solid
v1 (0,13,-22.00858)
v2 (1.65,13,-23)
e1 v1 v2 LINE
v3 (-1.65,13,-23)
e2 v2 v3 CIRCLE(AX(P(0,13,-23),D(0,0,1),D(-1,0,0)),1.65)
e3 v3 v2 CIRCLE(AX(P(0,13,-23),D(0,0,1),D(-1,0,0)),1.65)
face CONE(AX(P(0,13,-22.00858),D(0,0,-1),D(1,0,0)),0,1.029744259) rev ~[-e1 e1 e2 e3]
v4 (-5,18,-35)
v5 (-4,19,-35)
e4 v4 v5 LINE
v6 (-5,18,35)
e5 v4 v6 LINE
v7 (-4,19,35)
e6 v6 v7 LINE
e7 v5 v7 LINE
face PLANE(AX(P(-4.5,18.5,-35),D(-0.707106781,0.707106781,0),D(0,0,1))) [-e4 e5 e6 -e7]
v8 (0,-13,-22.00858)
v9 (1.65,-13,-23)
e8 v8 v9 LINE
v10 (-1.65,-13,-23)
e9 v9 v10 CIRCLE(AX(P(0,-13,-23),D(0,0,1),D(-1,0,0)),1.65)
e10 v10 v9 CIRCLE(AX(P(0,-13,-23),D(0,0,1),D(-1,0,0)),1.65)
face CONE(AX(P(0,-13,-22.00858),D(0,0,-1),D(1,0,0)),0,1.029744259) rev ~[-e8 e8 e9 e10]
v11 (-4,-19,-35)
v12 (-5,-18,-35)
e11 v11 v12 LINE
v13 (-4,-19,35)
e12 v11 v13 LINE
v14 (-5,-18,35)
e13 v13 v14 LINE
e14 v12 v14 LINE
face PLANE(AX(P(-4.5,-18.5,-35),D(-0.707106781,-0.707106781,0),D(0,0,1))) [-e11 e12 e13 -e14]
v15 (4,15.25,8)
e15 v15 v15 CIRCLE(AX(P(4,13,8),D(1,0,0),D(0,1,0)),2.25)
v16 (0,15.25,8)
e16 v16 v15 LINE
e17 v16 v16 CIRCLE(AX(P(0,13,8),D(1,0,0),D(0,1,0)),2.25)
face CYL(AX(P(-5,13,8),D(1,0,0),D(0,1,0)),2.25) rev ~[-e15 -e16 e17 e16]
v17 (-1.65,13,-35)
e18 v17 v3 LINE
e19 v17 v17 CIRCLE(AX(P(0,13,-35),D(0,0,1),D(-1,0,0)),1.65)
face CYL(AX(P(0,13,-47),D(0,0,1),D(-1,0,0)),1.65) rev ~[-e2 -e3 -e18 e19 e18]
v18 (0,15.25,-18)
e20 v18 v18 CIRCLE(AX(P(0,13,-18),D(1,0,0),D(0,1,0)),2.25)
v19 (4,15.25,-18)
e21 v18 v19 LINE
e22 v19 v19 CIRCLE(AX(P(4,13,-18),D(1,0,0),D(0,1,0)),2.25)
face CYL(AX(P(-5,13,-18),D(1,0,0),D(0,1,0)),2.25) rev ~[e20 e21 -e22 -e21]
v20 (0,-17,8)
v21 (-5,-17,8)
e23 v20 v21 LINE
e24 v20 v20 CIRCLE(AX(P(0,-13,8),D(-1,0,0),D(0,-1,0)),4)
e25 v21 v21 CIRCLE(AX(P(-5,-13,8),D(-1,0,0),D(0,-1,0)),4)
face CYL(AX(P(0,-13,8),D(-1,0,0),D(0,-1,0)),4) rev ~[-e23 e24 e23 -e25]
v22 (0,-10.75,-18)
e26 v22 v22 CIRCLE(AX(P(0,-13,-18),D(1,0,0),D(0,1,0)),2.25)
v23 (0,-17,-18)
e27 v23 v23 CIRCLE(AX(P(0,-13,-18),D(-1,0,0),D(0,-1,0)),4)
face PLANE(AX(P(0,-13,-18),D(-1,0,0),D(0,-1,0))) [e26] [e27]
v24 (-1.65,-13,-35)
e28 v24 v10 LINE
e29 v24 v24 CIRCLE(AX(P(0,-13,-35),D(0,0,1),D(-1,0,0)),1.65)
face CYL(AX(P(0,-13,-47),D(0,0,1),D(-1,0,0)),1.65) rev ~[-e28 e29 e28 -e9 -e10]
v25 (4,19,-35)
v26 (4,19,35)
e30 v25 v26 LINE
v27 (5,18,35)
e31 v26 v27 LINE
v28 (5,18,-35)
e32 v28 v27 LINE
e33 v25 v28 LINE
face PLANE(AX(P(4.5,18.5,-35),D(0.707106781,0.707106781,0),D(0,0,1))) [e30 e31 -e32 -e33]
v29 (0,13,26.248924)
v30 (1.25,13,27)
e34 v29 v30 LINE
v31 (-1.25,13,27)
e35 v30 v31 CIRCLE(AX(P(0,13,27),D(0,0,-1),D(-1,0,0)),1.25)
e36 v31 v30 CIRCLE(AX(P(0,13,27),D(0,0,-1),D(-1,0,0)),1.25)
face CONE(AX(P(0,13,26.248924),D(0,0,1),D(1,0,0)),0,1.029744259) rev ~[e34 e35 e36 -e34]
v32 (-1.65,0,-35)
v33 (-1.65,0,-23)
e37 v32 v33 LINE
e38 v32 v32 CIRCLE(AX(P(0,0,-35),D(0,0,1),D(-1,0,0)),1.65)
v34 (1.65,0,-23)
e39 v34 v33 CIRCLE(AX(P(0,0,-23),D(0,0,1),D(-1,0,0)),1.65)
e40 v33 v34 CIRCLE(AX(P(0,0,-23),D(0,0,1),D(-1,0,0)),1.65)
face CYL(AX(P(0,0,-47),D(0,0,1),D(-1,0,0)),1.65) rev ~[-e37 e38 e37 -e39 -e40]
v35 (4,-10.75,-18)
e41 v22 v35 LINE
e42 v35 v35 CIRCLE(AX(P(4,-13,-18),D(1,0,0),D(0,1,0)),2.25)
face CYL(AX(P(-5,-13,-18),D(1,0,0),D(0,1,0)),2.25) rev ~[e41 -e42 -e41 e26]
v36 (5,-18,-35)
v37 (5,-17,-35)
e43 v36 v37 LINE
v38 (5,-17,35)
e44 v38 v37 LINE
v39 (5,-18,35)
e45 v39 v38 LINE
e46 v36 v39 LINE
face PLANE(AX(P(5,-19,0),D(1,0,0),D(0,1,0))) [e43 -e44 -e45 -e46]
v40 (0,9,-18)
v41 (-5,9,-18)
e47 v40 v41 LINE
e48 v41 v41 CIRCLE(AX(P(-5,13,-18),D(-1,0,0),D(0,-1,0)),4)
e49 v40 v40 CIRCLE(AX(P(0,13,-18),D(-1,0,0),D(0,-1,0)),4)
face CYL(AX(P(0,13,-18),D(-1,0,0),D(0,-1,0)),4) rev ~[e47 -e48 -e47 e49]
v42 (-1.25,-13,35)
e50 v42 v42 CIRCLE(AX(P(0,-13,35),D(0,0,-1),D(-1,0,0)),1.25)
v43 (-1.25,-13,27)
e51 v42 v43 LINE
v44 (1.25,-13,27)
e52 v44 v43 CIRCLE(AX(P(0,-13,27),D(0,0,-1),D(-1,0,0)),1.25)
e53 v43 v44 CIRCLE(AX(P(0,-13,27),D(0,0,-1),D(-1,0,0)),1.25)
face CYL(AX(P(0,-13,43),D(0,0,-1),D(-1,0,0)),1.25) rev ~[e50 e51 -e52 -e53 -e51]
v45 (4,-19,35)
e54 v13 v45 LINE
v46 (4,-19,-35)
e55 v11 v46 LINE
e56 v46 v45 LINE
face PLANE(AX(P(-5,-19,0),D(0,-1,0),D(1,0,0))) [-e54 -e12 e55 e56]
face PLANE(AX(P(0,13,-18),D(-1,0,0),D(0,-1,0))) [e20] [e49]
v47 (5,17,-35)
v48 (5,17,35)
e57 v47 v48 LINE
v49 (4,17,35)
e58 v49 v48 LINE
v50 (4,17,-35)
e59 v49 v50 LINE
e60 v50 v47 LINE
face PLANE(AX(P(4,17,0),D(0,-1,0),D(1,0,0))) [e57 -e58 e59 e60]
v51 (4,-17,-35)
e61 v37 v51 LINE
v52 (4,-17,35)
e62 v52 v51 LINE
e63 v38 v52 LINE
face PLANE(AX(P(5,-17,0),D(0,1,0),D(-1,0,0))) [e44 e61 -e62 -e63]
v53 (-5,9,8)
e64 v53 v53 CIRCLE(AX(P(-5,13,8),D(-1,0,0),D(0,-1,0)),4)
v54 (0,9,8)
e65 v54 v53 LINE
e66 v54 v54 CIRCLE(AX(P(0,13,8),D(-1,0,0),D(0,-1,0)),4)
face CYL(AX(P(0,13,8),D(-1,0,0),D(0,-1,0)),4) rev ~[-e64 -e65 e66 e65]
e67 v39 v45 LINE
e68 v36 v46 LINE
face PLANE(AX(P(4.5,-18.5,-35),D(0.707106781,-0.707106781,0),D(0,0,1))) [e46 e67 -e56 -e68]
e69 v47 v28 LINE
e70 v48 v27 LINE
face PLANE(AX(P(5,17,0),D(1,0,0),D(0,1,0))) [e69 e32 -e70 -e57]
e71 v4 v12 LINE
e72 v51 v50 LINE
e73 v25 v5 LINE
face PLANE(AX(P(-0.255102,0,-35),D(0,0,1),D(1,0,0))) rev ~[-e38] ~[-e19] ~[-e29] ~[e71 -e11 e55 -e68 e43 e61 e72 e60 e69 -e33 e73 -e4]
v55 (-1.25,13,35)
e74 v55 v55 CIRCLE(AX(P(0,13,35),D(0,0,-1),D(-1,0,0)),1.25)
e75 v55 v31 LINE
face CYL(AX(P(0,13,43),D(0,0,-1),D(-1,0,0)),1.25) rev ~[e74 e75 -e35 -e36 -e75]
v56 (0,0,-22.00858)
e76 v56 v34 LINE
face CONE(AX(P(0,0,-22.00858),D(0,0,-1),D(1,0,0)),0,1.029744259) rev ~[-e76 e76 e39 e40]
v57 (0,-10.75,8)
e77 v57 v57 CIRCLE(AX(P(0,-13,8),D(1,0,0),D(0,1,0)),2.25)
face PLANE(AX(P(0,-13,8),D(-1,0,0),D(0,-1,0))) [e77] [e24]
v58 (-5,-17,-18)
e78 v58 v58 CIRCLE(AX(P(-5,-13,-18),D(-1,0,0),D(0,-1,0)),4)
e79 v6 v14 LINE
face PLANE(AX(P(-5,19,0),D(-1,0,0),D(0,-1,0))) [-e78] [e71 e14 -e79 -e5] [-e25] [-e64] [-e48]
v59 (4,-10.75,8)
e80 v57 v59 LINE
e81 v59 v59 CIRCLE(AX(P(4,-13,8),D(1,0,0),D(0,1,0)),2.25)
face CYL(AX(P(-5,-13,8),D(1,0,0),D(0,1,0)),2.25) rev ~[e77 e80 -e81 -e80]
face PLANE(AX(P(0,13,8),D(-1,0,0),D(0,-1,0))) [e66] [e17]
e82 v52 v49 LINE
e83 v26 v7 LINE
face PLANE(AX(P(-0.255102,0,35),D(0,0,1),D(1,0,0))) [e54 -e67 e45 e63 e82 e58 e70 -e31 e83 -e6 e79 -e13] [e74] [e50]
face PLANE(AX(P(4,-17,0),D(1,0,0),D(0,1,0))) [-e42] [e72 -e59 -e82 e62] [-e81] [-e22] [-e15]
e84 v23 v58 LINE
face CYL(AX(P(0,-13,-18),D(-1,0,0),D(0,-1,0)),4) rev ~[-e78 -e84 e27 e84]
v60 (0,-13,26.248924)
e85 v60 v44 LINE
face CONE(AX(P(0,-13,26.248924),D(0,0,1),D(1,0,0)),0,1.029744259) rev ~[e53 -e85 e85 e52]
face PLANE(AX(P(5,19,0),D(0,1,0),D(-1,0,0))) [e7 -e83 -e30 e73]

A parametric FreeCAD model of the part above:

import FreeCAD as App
import Part
import Sketcher

V = App.Vector
Q = App.Units.Quantity


def edges_at(feature, points):
    """Names of the edges that pass closest to the given points."""
    edges = feature.Shape.Edges
    near = lambda p: min(range(len(edges)), key=lambda i: edges[i].distToShape(Part.Vertex(*p))[0])
    return sorted({f"Edge{near(p) + 1}" for p in points})


def add_polygon(sketch, points):
    """Adds a closed chain of lines whose ends are joined by coincident constraints."""
    first, n = sketch.GeometryCount, len(points)
    for a, b in zip(points, points[1:] + points[:1]):
        sketch.addGeometry(Part.LineSegment(App.Vector(*a, 0), App.Vector(*b, 0)), False)
    for i in range(n):
        sketch.addConstraint(Sketcher.Constraint("Coincident", first + i, 2, first + (i + 1) % n, 1))

doc = App.newDocument("Part")
body = doc.addObject("PartDesign::Body", "Body")

# Sketch on XY plane
sketch1 = body.newObject("Sketcher::SketchObject", "Sketch")
sketch1.AttachmentSupport = (doc.getObject("XY_Plane"), [""])
sketch1.MapMode = "FlatFace"
add_polygon(sketch1, [(4, 17), (5, 17), (5, 19), (-5, 19), (-5, -19), (5, -19), (5, -17), (4, -17)])  # lines 0-7
sketch1.addConstraint(Sketcher.Constraint("Horizontal", 0))
sketch1.addConstraint(Sketcher.Constraint("Vertical", 1))
sketch1.addConstraint(Sketcher.Constraint("Horizontal", 2))
sketch1.addConstraint(Sketcher.Constraint("Vertical", 3))
sketch1.addConstraint(Sketcher.Constraint("Horizontal", 4))
sketch1.addConstraint(Sketcher.Constraint("Vertical", 5))
sketch1.addConstraint(Sketcher.Constraint("Horizontal", 6))
sketch1.addConstraint(Sketcher.Constraint("Vertical", 7))
sketch1.addConstraint(Sketcher.Constraint("Symmetric", 1, 2, 3, 2, -1, 1))
sketch1.addConstraint(Sketcher.Constraint("Symmetric", 0, 2, 5, 2, -1))
sketch1.addConstraint(Sketcher.Constraint("DistanceX", 0, 1, 0, 2, Q("1 mm")))
sketch1.addConstraint(Sketcher.Constraint("DistanceX", 2, 2, 2, 1, Q("10 mm")))
sketch1.addConstraint(Sketcher.Constraint("DistanceY", 1, 1, 1, 2, Q("2 mm")))
sketch1.addConstraint(Sketcher.Constraint("DistanceY", 3, 2, 3, 1, Q("38 mm")))
pad1 = body.newObject("PartDesign::Pad", "Pad")
pad1.Profile = sketch1
pad1.Length = 70
pad1.Midplane = True
doc.recompute()

chamfer = body.newObject("PartDesign::Chamfer", "Chamfer")
chamfer.Base = (pad1, edges_at(pad1, [
    (-5, 19, 0),
    (5, 19, 0),
    (-5, -19, 0),
    (5, -19, 0),
]))
chamfer.Size = 1

# Sketch on XY plane
sketch2 = body.newObject("Sketcher::SketchObject", "Sketch001")
sketch2.AttachmentSupport = (doc.getObject("XY_Plane"), [""])
sketch2.MapMode = "FlatFace"
sketch2.AttachmentOffset = App.Placement(V(0, 0, 35), App.Rotation())
sketch2.addGeometry(Part.Circle(V(0, 13, 0), V(0, 0, 1), 1.25), False)
sketch2.addGeometry(Part.Circle(V(0, -13, 0), V(0, 0, 1), 1.25), False)
sketch2.addConstraint(Sketcher.Constraint("Equal", 0, 1))
sketch2.addConstraint(Sketcher.Constraint("Symmetric", 0, 3, 1, 3, -1, 1))
sketch2.addConstraint(Sketcher.Constraint("PointOnObject", 0, 3, -2))
sketch2.addConstraint(Sketcher.Constraint("Diameter", 0, Q("2.5 mm")))
sketch2.addConstraint(Sketcher.Constraint("DistanceY", -1, 1, 0, 3, Q("13 mm")))
doc.recompute()
hole = body.newObject("PartDesign::Hole", "Hole")
hole.Profile = sketch2
hole.ThreadType = "None"
hole.Diameter = 2.5
hole.DepthType = "Dimension"
hole.Depth = 8
hole.DrillPoint = "Angled"
hole.DrillPointAngle = 118

# Sketch on YZ plane
sketch3 = body.newObject("Sketcher::SketchObject", "Sketch002")
sketch3.AttachmentSupport = (doc.getObject("YZ_Plane"), [""])
sketch3.MapMode = "FlatFace"
sketch3.AttachmentOffset = App.Placement(V(0, 0, -5), App.Rotation())
sketch3.addGeometry(Part.Circle(V(13, 8, 0), V(0, 0, 1), 2.25), False)
sketch3.addGeometry(Part.Circle(V(-13, 8, 0), V(0, 0, 1), 2.25), False)
sketch3.addGeometry(Part.Circle(V(-13, -18, 0), V(0, 0, 1), 2.25), False)
sketch3.addGeometry(Part.Circle(V(13, -18, 0), V(0, 0, 1), 2.25), False)
sketch3.addConstraint(Sketcher.Constraint("Equal", 0, 1))
sketch3.addConstraint(Sketcher.Constraint("Equal", 1, 2))
sketch3.addConstraint(Sketcher.Constraint("Equal", 2, 3))
sketch3.addConstraint(Sketcher.Constraint("Symmetric", 0, 3, 1, 3, -2))
sketch3.addConstraint(Sketcher.Constraint("Symmetric", 2, 3, 3, 3, -2))
sketch3.addConstraint(Sketcher.Constraint("Vertical", 1, 3, 2, 3))
sketch3.addConstraint(Sketcher.Constraint("Diameter", 0, Q("4.5 mm")))
sketch3.addConstraint(Sketcher.Constraint("DistanceX", -1, 1, 0, 3, Q("13 mm")))
sketch3.addConstraint(Sketcher.Constraint("DistanceY", -1, 1, 0, 3, Q("8 mm")))
sketch3.addConstraint(Sketcher.Constraint("DistanceY", 2, 3, -1, 1, Q("18 mm")))
doc.recompute()
hole2 = body.newObject("PartDesign::Hole", "Hole001")
hole2.Profile = sketch3
hole2.ThreadType = "None"
hole2.Diameter = 4.5
hole2.DepthType = "ThroughAll"
hole2.HoleCutType = "Counterbore"
hole2.HoleCutDiameter = 8
hole2.HoleCutDepth = 5
hole2.Reversed = True

# Sketch on XY plane
sketch4 = body.newObject("Sketcher::SketchObject", "Sketch003")
sketch4.AttachmentSupport = (doc.getObject("XY_Plane"), [""])
sketch4.MapMode = "FlatFace"
sketch4.AttachmentOffset = App.Placement(V(0, 0, -35), App.Rotation())
sketch4.addGeometry(Part.Circle(V(0, -13, 0), V(0, 0, 1), 1.65), False)
sketch4.addGeometry(Part.Circle(V(0, 0, 0), V(0, 0, 1), 1.65), False)
sketch4.addGeometry(Part.Circle(V(0, 13, 0), V(0, 0, 1), 1.65), False)
sketch4.addConstraint(Sketcher.Constraint("Coincident", 1, 3, -1, 1))
sketch4.addConstraint(Sketcher.Constraint("Equal", 0, 1))
sketch4.addConstraint(Sketcher.Constraint("Equal", 1, 2))
sketch4.addConstraint(Sketcher.Constraint("Symmetric", 0, 3, 2, 3, -1, 1))
sketch4.addConstraint(Sketcher.Constraint("PointOnObject", 0, 3, -2))
sketch4.addConstraint(Sketcher.Constraint("Diameter", 0, Q("3.3 mm")))
sketch4.addConstraint(Sketcher.Constraint("DistanceY", 0, 3, -1, 1, Q("13 mm")))
doc.recompute()
hole3 = body.newObject("PartDesign::Hole", "Hole002")
hole3.Profile = sketch4
hole3.ThreadType = "None"
hole3.Diameter = 3.3
hole3.DepthType = "Dimension"
hole3.Depth = 12
hole3.DrillPoint = "Angled"
hole3.DrillPointAngle = 118
hole3.Reversed = True

doc.recompute()
